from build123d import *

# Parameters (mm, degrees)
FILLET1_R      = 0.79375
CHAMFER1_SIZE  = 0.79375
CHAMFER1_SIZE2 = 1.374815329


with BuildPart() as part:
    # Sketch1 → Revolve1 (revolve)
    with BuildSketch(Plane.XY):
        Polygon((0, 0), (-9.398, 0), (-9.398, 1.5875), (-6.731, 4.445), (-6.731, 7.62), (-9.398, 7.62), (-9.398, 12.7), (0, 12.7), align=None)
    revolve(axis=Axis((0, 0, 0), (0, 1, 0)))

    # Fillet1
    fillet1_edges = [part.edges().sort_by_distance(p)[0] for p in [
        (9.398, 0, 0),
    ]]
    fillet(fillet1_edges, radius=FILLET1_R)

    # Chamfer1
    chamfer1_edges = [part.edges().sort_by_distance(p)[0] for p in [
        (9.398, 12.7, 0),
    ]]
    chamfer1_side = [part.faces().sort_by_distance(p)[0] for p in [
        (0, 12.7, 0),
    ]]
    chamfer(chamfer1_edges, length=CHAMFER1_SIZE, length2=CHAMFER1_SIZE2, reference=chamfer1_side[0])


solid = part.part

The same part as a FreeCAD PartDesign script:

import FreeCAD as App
import Part
import Sketcher

V = App.Vector
Q = App.Units.Quantity


def edges_at(feature, points):
    """Names of the edges that pass closest to the given points."""
    edges = feature.Shape.Edges
    near = lambda p: min(range(len(edges)), key=lambda i: edges[i].distToShape(Part.Vertex(*p))[0])
    return sorted({f"Edge{near(p) + 1}" for p in points})

doc = App.newDocument("Part")
body = doc.addObject("PartDesign::Body", "Body")

# Sketch on XY plane
sketch1 = body.newObject("Sketcher::SketchObject", "Sketch")
sketch1.AttachmentSupport = (doc.getObject("XY_Plane"), [""])
sketch1.MapMode = "FlatFace"
sketch1.addGeometry(Part.LineSegment(V(-9.4, 0, 0), V(0, 0, 0)), False)
sketch1.addGeometry(Part.LineSegment(V(0, 0, 0), V(0, 12.7, 0)), False)
sketch1.addGeometry(Part.LineSegment(V(0, 12.7, 0), V(-9.4, 12.7, 0)), False)
sketch1.addGeometry(Part.LineSegment(V(-9.4, 12.7, 0), V(-9.4, 7.6, 0)), False)
sketch1.addGeometry(Part.LineSegment(V(-9.4, 7.6, 0), V(-6.7, 7.6, 0)), False)
sketch1.addGeometry(Part.LineSegment(V(-6.7, 7.6, 0), V(-6.7, 4.4, 0)), False)
sketch1.addGeometry(Part.LineSegment(V(-6.7, 4.4, 0), V(-9.4, 1.6, 0)), False)
sketch1.addGeometry(Part.LineSegment(V(-9.4, 1.6, 0), V(-9.4, 0, 0)), False)
sketch1.addConstraint(Sketcher.Constraint("Coincident", 0, 2, 1, 1))
sketch1.addConstraint(Sketcher.Constraint("Coincident", 1, 2, 2, 1))
sketch1.addConstraint(Sketcher.Constraint("Coincident", 2, 2, 3, 1))
sketch1.addConstraint(Sketcher.Constraint("Coincident", 3, 2, 4, 1))
sketch1.addConstraint(Sketcher.Constraint("Coincident", 4, 2, 5, 1))
sketch1.addConstraint(Sketcher.Constraint("Coincident", 5, 2, 6, 1))
sketch1.addConstraint(Sketcher.Constraint("Coincident", 6, 2, 7, 1))
sketch1.addConstraint(Sketcher.Constraint("Coincident", 7, 2, 0, 1))
sketch1.addConstraint(Sketcher.Constraint("Horizontal", 0))
sketch1.addConstraint(Sketcher.Constraint("Vertical", 1))
sketch1.addConstraint(Sketcher.Constraint("Horizontal", 2))
sketch1.addConstraint(Sketcher.Constraint("Vertical", 3))
sketch1.addConstraint(Sketcher.Constraint("Horizontal", 4))
sketch1.addConstraint(Sketcher.Constraint("Vertical", 5))
sketch1.addConstraint(Sketcher.Constraint("Vertical", 7))
sketch1.addConstraint(Sketcher.Constraint("Coincident", 0, 2, -1, 1))
sketch1.addConstraint(Sketcher.Constraint("Vertical", 3, 2, 6, 2))
sketch1.addConstraint(Sketcher.Constraint("DistanceY", 1, 1, 1, 2, Q("0.5 in")))
sketch1.addConstraint(Sketcher.Constraint("DistanceY", 3, 2, 3, 1, Q("0.2 in")))
sketch1.addConstraint(Sketcher.Constraint("DistanceX", 0, 1, 0, 2, Q("0.37 in")))
sketch1.addConstraint(Sketcher.Constraint("DistanceX", 4, 1, 4, 2, Q("0.105 in")))
sketch1.addConstraint(Sketcher.Constraint("DistanceY", 5, 2, 5, 1, Q("0.125 in")))
sketch1.addConstraint(Sketcher.Constraint("DistanceY", 7, 2, 7, 1, Q("0.0625 in")))
revolution = body.newObject("PartDesign::Revolution", "Revolution")
revolution.Profile = sketch1
revolution.ReferenceAxis = (sketch1, ["V_Axis"])
revolution.Angle = 360
doc.recompute()

fillet = body.newObject("PartDesign::Fillet", "Fillet")
fillet.Base = (revolution, edges_at(revolution, [(9.398, 0, 0)]))
fillet.Radius = Q("0.03125 in")
doc.recompute()

chamfer = body.newObject("PartDesign::Chamfer", "Chamfer")
chamfer.Base = (fillet, edges_at(fillet, [(9.398, 12.7, 0)]))
chamfer.ChamferType = "Two distances"
chamfer.Size = Q("0.03125 in")
chamfer.Size2 = 1.374815
chamfer.FlipDirection = True

doc.recompute()
